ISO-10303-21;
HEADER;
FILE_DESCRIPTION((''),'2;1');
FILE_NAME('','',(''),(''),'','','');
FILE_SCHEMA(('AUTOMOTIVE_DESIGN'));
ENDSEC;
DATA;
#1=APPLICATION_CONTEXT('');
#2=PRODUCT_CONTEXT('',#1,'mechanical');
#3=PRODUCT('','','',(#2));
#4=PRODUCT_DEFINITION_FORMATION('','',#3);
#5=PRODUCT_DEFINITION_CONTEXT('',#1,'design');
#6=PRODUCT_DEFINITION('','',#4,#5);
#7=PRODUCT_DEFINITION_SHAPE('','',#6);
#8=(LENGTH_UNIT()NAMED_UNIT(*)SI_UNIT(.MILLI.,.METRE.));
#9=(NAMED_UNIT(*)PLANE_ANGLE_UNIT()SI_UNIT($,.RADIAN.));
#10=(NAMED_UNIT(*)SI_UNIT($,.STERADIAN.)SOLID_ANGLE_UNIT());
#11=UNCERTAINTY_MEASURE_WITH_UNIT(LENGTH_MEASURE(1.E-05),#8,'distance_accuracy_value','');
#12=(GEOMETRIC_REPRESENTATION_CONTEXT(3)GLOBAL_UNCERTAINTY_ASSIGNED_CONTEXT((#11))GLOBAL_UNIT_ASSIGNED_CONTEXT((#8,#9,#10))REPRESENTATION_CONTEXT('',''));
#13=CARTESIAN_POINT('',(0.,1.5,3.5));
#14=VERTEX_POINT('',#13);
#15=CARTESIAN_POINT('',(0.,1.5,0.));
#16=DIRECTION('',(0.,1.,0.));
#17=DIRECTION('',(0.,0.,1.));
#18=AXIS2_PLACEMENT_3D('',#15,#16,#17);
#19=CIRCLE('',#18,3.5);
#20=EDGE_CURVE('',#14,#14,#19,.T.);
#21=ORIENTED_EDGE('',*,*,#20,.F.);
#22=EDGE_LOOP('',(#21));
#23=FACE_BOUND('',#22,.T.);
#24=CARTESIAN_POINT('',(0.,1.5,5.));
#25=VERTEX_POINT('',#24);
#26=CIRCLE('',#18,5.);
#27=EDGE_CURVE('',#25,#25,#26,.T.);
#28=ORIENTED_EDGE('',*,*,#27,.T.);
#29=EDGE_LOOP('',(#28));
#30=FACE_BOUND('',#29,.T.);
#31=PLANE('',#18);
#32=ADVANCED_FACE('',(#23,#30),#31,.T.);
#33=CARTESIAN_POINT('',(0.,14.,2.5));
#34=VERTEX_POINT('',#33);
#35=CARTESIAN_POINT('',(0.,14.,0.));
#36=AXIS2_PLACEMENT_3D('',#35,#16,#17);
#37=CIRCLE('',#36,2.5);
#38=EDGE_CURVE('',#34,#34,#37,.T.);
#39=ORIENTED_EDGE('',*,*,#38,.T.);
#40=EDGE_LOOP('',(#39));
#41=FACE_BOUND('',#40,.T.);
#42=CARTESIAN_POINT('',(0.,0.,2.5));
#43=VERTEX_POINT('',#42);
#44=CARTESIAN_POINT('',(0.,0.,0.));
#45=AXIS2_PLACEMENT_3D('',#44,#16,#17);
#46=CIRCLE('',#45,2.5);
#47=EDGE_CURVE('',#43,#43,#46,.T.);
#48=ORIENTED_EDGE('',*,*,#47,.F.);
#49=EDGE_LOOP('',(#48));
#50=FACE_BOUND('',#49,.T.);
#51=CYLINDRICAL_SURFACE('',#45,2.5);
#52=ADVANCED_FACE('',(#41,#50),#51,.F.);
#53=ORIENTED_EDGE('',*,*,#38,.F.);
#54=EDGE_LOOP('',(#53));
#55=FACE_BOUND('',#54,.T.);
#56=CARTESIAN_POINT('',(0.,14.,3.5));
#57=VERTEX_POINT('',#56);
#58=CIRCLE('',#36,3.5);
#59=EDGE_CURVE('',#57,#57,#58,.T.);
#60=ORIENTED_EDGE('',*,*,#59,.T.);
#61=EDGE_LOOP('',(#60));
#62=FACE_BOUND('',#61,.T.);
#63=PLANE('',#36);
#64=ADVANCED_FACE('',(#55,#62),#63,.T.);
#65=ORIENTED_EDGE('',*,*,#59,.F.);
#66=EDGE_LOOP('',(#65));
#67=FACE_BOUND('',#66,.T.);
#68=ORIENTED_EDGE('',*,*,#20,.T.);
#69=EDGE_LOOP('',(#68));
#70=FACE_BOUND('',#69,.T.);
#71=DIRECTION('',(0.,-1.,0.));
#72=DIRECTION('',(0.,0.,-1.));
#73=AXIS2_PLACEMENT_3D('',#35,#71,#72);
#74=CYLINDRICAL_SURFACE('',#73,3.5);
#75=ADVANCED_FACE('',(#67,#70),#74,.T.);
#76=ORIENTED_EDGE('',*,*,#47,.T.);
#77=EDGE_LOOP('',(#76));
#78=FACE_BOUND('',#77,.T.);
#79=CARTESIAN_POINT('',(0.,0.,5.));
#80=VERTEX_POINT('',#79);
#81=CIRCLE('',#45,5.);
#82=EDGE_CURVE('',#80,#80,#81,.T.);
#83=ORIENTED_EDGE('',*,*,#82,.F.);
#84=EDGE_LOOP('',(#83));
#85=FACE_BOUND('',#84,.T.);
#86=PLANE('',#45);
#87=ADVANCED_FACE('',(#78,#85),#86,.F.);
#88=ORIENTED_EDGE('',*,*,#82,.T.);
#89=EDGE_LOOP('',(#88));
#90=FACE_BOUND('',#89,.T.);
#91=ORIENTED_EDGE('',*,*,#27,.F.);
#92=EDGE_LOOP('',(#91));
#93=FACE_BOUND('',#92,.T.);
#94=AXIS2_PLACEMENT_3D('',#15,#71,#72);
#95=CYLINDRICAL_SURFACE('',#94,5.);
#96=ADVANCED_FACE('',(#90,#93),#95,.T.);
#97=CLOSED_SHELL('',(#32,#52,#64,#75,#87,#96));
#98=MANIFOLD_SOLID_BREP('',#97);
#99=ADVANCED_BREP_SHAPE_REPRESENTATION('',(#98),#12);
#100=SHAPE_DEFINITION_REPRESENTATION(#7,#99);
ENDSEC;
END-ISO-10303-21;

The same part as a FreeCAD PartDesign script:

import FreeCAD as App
import Part
import Sketcher
Q = App.Units.Quantity

doc = App.newDocument("Part")
body = doc.addObject("PartDesign::Body", "Body")

sketch1 = body.newObject("Sketcher::SketchObject", "Sketch")
sketch1.AttachmentSupport = (doc.getObject("XZ_Plane"), [""])
sketch1.MapMode = "FlatFace"
sketch1.addGeometry(Part.Circle(App.Vector(0, 0, 0), App.Vector(0, 0, 1), 5), False)
sketch1.addConstraint([
    Sketcher.Constraint("Coincident", 0, 3, -1, 1),
    Sketcher.Constraint("Diameter", 0, Q("10 mm")),
])
pad1 = body.newObject("PartDesign::Pad", "Pad")
pad1.Profile = sketch1
pad1.Length = 1.5
pad1.Reversed = True

sketch2 = body.newObject("Sketcher::SketchObject", "Sketch001")
sketch2.AttachmentSupport = (doc.getObject("XZ_Plane"), [""])
sketch2.MapMode = "FlatFace"
sketch2.AttachmentOffset = App.Placement(App.Vector(0, 0, -1.5), App.Rotation())
sketch2.addGeometry(Part.Circle(App.Vector(0, 0, 0), App.Vector(0, 0, 1), 3.5), False)
sketch2.addConstraint([
    Sketcher.Constraint("Coincident", 0, 3, -1, 1),
    Sketcher.Constraint("Diameter", 0, Q("7 mm")),
])
pad2 = body.newObject("PartDesign::Pad", "Pad001")
pad2.Profile = sketch2
pad2.Length = 12.5
pad2.Reversed = True

sketch3 = body.newObject("Sketcher::SketchObject", "Sketch002")
sketch3.AttachmentSupport = (doc.getObject("XZ_Plane"), [""])
sketch3.MapMode = "FlatFace"
sketch3.AttachmentOffset = App.Placement(App.Vector(0, 0, -14), App.Rotation())
sketch3.addGeometry(Part.Circle(App.Vector(0, 0, 0), App.Vector(0, 0, 1), 2.5), False)
sketch3.addConstraint([
    Sketcher.Constraint("Coincident", 0, 3, -1, 1),
    Sketcher.Constraint("Diameter", 0, Q("5 mm")),
])
pocket1 = body.newObject("PartDesign::Pocket", "Pocket")
pocket1.Profile = sketch3
pocket1.Type = "ThroughAll"
pocket1.Reversed = True

doc.recompute()
